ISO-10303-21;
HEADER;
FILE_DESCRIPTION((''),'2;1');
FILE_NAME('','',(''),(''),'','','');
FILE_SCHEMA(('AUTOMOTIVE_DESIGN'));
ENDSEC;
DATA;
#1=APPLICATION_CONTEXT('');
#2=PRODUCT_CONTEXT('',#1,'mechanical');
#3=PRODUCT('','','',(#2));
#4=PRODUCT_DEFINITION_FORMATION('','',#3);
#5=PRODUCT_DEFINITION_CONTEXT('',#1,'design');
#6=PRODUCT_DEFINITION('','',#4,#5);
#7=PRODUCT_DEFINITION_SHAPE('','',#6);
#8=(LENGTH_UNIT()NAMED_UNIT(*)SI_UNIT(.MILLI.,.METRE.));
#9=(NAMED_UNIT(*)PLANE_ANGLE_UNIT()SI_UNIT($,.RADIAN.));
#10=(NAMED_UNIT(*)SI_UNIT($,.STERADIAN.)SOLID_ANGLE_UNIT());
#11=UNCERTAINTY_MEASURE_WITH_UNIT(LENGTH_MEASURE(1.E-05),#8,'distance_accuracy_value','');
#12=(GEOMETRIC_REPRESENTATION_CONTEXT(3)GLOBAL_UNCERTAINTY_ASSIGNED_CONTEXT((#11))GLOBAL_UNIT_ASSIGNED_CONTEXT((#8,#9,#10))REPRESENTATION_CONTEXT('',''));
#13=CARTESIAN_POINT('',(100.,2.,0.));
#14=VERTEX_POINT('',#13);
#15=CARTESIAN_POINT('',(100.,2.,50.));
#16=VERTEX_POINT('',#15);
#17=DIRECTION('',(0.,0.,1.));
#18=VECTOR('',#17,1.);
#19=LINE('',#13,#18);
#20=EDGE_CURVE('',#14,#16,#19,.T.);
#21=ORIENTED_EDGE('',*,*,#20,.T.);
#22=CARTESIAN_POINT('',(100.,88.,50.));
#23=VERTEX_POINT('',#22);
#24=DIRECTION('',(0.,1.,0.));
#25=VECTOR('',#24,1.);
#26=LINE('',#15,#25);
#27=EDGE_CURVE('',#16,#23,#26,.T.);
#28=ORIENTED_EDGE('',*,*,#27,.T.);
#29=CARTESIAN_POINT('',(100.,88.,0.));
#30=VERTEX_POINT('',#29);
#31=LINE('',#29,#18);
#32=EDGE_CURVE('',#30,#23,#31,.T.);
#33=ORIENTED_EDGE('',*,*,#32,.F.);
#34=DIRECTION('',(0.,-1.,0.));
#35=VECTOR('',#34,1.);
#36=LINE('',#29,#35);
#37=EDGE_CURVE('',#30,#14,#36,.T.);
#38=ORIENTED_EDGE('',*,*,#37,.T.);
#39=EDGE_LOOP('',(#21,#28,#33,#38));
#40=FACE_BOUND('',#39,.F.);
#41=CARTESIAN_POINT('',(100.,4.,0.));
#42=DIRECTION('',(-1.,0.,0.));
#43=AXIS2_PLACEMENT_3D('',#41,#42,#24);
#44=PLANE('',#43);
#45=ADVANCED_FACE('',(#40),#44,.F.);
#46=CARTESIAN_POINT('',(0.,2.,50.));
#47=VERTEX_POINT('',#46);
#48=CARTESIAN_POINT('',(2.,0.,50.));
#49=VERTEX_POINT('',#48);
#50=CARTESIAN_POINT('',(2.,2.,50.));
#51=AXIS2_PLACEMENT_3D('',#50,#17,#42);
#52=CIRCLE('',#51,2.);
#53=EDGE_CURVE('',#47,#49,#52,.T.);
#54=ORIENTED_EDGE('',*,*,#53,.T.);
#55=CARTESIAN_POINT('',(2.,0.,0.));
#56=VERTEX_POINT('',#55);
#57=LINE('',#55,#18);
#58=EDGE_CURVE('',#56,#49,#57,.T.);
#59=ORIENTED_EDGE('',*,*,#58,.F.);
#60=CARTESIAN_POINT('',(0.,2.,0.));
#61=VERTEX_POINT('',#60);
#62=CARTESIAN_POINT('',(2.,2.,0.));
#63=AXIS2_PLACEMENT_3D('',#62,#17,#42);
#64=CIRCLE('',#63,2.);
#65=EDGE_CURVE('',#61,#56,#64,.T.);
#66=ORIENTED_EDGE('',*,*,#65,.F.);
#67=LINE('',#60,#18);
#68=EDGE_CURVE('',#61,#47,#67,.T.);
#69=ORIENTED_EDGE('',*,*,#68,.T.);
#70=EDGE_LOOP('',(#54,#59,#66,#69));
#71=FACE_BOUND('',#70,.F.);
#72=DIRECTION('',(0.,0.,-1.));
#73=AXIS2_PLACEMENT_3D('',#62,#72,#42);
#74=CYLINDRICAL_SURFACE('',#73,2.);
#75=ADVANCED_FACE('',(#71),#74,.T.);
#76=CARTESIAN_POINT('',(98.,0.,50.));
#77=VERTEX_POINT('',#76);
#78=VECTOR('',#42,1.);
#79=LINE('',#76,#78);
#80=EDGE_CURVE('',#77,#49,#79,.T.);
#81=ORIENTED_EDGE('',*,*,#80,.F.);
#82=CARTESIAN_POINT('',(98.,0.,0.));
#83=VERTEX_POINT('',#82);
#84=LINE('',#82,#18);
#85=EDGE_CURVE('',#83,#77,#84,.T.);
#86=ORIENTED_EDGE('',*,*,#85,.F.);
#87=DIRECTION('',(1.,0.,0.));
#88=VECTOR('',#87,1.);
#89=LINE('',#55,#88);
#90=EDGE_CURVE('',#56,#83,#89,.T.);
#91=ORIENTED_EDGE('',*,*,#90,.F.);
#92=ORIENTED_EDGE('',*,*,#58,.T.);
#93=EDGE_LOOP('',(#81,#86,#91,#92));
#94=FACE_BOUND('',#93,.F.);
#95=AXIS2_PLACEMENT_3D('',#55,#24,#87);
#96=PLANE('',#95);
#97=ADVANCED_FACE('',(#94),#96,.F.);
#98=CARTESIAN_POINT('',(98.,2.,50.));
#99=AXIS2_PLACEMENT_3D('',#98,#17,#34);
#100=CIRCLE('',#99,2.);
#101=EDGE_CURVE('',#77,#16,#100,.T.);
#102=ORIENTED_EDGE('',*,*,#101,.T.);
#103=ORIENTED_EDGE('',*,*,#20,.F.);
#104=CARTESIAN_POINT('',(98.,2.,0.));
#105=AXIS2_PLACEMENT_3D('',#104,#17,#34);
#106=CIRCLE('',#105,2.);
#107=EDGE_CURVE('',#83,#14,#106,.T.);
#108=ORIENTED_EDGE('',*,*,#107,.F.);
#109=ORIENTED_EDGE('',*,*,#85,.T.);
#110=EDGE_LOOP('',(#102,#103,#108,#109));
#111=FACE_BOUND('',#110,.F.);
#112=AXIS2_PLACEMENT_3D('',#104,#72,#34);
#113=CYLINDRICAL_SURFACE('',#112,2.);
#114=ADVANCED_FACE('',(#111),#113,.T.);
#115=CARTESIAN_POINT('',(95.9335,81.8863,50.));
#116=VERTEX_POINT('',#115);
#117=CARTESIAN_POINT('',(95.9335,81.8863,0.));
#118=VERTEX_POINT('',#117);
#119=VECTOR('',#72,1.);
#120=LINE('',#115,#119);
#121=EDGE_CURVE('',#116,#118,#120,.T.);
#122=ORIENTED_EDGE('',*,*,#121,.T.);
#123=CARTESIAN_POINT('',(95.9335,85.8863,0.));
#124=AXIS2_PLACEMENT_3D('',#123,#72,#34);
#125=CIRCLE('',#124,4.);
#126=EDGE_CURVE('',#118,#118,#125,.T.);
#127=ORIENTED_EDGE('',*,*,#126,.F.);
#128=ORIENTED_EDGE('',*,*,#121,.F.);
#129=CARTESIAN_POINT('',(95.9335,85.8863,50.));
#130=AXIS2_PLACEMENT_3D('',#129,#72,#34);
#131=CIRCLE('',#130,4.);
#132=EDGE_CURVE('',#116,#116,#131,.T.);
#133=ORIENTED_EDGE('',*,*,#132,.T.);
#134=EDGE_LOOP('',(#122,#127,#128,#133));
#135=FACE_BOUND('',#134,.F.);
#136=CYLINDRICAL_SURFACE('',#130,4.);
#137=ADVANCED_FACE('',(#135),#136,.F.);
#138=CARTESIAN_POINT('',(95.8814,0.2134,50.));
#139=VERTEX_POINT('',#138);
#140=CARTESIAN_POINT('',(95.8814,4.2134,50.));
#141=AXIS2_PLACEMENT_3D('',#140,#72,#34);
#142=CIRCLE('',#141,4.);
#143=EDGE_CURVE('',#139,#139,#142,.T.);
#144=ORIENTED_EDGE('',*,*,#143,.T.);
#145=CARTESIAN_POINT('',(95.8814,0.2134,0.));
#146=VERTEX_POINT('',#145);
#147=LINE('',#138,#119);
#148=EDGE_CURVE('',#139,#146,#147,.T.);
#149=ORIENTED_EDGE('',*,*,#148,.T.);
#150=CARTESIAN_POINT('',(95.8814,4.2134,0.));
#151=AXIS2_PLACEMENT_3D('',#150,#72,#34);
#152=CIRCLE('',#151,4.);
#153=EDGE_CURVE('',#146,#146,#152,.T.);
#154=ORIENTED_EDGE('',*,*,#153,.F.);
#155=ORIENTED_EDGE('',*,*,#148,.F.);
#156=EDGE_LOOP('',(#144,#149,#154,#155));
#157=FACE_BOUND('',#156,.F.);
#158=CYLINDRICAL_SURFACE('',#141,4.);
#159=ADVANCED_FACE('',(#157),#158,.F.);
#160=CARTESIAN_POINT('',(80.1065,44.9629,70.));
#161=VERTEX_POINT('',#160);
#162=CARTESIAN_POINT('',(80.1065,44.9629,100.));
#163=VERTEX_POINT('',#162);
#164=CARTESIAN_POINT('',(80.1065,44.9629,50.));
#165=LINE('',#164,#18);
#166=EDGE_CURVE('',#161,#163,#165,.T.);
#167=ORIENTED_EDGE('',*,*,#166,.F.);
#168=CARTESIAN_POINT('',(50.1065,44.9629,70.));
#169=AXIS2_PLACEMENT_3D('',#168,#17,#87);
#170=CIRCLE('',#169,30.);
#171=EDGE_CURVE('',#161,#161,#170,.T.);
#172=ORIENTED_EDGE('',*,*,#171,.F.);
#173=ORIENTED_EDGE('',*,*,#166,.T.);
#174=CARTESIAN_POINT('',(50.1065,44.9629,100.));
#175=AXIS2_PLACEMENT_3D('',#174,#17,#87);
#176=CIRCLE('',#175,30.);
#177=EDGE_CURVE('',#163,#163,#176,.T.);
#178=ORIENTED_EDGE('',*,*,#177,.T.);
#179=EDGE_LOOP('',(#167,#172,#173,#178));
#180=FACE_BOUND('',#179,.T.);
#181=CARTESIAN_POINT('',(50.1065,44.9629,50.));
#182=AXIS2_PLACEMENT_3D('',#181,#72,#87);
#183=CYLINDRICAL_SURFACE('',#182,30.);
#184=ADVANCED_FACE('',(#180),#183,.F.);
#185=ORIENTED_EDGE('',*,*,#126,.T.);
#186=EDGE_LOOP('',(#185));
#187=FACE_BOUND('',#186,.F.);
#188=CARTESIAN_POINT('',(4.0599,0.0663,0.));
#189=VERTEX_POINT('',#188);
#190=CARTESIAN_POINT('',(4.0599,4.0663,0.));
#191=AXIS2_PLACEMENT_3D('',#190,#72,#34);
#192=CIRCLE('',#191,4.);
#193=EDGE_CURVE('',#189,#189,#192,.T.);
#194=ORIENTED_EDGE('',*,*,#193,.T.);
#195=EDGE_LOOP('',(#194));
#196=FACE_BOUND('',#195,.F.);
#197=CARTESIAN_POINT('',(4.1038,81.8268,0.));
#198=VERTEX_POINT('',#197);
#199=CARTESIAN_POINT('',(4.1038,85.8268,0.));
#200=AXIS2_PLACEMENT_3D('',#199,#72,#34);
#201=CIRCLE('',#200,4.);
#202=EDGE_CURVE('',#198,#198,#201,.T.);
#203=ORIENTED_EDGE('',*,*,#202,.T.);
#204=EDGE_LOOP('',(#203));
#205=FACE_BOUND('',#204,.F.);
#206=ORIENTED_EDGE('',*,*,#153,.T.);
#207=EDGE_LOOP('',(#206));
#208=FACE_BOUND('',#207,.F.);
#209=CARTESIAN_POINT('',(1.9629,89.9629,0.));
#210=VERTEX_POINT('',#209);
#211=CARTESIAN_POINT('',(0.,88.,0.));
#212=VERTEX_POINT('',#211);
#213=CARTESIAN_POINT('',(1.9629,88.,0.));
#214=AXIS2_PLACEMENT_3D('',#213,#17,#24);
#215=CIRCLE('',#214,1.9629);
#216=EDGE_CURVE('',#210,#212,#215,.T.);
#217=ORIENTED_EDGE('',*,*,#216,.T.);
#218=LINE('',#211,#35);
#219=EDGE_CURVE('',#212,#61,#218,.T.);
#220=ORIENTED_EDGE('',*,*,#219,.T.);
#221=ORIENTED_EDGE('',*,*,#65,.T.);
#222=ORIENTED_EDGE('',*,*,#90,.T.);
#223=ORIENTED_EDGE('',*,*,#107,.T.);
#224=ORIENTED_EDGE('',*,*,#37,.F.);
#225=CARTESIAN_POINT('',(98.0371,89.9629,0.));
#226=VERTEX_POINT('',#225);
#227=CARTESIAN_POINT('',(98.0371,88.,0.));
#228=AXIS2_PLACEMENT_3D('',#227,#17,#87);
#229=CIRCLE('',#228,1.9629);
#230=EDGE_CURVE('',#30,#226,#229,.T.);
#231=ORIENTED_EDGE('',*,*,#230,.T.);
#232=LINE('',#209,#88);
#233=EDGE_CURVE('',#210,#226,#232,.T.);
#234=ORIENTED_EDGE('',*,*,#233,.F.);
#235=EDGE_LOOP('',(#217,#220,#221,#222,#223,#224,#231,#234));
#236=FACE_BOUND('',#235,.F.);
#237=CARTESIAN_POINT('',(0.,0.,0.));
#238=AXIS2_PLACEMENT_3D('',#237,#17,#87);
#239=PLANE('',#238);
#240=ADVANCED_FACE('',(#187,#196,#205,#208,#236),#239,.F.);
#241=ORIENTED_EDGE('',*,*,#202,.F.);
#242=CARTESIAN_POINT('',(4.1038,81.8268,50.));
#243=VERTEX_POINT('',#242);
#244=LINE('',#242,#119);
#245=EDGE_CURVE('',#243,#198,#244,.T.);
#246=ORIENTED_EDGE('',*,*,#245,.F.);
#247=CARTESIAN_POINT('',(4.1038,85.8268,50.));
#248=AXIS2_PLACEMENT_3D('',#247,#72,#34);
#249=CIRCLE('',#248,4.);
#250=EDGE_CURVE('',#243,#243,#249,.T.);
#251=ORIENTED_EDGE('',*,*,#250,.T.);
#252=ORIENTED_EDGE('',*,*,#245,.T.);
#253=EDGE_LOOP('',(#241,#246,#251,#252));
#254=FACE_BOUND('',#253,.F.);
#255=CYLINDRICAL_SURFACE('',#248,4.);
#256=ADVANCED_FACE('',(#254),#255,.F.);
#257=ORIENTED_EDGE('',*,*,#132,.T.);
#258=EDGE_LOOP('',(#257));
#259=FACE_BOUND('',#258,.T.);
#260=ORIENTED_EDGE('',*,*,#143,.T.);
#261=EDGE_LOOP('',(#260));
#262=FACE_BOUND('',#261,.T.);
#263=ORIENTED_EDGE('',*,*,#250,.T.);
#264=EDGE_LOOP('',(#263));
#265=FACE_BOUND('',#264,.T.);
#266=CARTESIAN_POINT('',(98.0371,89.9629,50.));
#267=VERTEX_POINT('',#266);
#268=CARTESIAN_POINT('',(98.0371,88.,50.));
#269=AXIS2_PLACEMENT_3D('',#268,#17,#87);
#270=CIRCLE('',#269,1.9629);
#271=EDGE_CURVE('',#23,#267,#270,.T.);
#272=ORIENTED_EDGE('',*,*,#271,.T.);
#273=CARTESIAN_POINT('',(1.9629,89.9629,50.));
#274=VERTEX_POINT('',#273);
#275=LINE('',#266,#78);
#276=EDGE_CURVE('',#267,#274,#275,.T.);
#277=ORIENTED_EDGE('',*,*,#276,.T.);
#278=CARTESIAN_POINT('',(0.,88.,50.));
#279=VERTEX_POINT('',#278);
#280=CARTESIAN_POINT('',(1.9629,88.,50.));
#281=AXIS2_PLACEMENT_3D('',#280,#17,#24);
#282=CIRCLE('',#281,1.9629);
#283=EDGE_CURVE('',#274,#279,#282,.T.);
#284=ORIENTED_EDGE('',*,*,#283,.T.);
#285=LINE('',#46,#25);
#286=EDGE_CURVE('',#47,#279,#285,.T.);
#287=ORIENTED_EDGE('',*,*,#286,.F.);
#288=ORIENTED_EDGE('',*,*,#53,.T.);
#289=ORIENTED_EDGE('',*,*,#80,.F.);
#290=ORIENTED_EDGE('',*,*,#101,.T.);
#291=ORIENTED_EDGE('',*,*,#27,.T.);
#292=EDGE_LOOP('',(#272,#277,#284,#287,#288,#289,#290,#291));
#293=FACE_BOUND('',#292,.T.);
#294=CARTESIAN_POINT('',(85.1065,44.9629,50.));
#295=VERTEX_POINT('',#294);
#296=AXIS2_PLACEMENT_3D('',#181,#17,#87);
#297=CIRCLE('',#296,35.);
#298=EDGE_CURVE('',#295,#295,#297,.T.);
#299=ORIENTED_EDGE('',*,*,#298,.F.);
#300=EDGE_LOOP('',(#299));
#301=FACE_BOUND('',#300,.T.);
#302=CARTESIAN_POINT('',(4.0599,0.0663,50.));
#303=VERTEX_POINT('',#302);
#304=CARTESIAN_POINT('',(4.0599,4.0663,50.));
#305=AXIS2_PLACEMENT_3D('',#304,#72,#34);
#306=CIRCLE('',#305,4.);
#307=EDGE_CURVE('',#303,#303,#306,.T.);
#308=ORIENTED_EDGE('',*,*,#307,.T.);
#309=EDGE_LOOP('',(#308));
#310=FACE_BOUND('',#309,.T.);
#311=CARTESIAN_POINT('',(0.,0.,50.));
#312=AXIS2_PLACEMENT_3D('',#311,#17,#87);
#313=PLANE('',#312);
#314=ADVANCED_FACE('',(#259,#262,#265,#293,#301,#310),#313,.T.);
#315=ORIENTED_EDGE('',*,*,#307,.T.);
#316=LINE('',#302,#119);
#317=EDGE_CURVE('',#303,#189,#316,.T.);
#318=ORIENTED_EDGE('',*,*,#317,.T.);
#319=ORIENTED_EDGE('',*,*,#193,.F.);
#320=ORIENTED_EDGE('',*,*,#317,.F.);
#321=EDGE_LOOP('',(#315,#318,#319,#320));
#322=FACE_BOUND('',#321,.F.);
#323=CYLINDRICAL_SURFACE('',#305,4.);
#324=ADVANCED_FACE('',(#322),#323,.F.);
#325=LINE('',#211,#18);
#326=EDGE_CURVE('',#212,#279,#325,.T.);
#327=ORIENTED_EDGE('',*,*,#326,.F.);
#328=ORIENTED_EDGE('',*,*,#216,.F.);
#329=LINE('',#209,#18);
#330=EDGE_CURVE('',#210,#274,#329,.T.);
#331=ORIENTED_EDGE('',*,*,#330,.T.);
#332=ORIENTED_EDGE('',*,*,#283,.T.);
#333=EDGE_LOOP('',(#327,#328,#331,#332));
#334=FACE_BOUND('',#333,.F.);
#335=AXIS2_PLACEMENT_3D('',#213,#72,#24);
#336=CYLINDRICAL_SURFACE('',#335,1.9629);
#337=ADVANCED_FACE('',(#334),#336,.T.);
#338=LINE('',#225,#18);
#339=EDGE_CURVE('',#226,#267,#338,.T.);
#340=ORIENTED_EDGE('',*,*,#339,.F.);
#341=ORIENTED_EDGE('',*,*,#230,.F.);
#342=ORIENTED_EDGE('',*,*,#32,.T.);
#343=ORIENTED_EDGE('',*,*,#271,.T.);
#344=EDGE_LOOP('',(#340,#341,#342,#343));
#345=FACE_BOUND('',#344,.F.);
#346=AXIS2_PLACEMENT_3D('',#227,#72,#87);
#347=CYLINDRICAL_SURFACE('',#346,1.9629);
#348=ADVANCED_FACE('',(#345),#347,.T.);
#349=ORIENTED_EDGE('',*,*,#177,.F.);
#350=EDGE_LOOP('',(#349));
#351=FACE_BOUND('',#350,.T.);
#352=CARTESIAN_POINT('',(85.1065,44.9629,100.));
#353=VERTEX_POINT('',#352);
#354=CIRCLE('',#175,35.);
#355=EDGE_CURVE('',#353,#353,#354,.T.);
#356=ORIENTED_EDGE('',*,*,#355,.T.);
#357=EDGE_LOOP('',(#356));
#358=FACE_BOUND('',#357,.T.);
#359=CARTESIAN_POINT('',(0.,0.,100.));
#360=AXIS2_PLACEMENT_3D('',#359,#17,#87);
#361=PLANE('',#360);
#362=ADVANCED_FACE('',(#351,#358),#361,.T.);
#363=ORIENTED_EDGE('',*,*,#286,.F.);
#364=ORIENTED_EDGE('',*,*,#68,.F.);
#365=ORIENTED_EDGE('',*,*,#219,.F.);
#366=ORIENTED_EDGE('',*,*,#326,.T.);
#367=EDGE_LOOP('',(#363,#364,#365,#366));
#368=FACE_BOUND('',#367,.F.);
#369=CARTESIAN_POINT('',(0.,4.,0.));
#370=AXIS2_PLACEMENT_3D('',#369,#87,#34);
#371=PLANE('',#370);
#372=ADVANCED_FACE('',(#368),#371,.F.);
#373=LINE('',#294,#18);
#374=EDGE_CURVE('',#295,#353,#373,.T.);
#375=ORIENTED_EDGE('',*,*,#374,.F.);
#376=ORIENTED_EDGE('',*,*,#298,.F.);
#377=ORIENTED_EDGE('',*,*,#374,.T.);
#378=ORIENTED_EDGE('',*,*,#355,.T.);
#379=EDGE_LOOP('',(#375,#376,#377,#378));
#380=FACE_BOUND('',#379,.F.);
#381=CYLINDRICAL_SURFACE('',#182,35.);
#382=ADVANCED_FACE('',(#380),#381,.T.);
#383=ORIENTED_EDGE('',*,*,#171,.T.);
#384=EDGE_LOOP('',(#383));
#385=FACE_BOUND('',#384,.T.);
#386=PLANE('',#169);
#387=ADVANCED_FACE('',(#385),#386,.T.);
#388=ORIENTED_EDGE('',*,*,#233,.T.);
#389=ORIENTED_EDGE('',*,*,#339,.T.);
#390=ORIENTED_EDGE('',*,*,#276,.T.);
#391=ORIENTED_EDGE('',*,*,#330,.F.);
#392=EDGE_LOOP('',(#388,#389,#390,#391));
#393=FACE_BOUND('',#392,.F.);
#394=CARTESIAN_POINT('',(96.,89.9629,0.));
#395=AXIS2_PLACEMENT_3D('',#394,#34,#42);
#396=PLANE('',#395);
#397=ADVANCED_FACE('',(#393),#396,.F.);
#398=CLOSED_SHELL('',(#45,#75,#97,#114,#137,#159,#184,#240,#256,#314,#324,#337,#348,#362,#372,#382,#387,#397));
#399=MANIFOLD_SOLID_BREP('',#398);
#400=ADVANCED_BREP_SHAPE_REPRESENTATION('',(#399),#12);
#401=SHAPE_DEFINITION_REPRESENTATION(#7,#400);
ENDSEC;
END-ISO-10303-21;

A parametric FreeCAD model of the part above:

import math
import FreeCAD as App
import Part
import Sketcher

V = App.Vector
Q = App.Units.Quantity

doc = App.newDocument("Part")
params = doc.addObject("Spreadsheet::Sheet", "Params")
for row, (alias, value) in enumerate([
    ("sketch1_radius", "2 mm"),
    ("sketch1_height", "86 mm"),
    ("pad1_length", "50 mm"),
    ("sketch2_diameter", "8 mm"),
    ("hole_diameter", "8 mm"),
    ("sketch3_diameter", "8 mm"),
    ("hole2_diameter", "8 mm"),
    ("sketch4_diameter", "8 mm"),
    ("hole3_diameter", "8 mm"),
    ("sketch5_diameter", "8 mm"),
    ("hole4_diameter", "8 mm"),
    ("sketch6_diameter", "70 mm"),
    ("sketch6_diameter2", "60 mm"),
    ("pad2_length", "50 mm"),
    ("sketch7_diameter", "60 mm"),
    ("pad3_length", "20 mm"),
], start=1):
    params.set(f"A{row}", alias)
    params.set(f"B{row}", "=" + value)
    params.setAlias(f"B{row}", alias)

body = doc.addObject("PartDesign::Body", "Body")

# Sketch on XY plane
sketch1 = doc.addObject("Sketcher::SketchObject", "Sketch")
body.addObject(sketch1)
sketch1.AttachmentSupport = (doc.XY_Plane, [""])
sketch1.MapMode = "FlatFace"
sketch1.addGeometry([
    Part.ArcOfCircle(Part.Circle(V(2, 2, 0), V(0, 0, 1), 2), math.radians(180), math.radians(270)),  # 0
    Part.LineSegment(V(2, 0, 0), V(98, 0, 0)),  # 1
    Part.ArcOfCircle(Part.Circle(V(98, 2, 0), V(0, 0, 1), 2), math.radians(-90), math.radians(0)),  # 2
    Part.LineSegment(V(100, 2, 0), V(100, 88, 0)),  # 3
    Part.ArcOfCircle(Part.Circle(V(98, 88, 0), V(0, 0, 1), 2), math.radians(0), math.radians(90)),  # 4
    Part.LineSegment(V(98, 90, 0), V(2, 90, 0)),  # 5
    Part.ArcOfCircle(Part.Circle(V(2, 88, 0), V(0, 0, 1), 2), math.radians(90), math.radians(180)),  # 6
    Part.LineSegment(V(0, 88, 0), V(0, 2, 0)),  # 7
], False)
sketch1.addConstraint([
    Sketcher.Constraint("Tangent", 0, 2, 1, 1),
    Sketcher.Constraint("Tangent", 1, 2, 2, 1),
    Sketcher.Constraint("Tangent", 2, 2, 3, 1),
    Sketcher.Constraint("Tangent", 3, 2, 4, 1),
    Sketcher.Constraint("Tangent", 4, 2, 5, 1),
    Sketcher.Constraint("Tangent", 5, 2, 6, 1),
    Sketcher.Constraint("Tangent", 6, 2, 7, 1),
    Sketcher.Constraint("Tangent", 7, 2, 0, 1),
    Sketcher.Constraint("Horizontal", 1),
    Sketcher.Constraint("Vertical", 3),
    Sketcher.Constraint("Horizontal", 5),
    Sketcher.Constraint("Vertical", 7),
    Sketcher.Constraint("Equal", 0, 2),
    Sketcher.Constraint("Equal", 4, 6),
    Sketcher.Constraint("PointOnObject", 0, 2, -1),
    Sketcher.Constraint("PointOnObject", 6, 2, -2),
    Sketcher.Constraint("DistanceX", -1, 1, 2, 2, Q("100 mm")),
    Sketcher.Constraint("Radius", 0, Q("2 mm")),
    Sketcher.Constraint("DistanceY", 3, 1, 3, 2, Q("86 mm")),
    Sketcher.Constraint("Radius", 4, Q("1.963 mm")),
])
sketch1.setExpression("Constraints[17]", "Params.sketch1_radius")
sketch1.setExpression("Constraints[18]", "Params.sketch1_height")
pad1 = doc.addObject("PartDesign::Pad", "Pad")
body.addObject(pad1)
pad1.Profile = sketch1
pad1.setExpression("Length", "Params.pad1_length")

# Sketch on XY plane
sketch2 = doc.addObject("Sketcher::SketchObject", "Sketch001")
body.addObject(sketch2)
sketch2.AttachmentSupport = (doc.XY_Plane, [""])
sketch2.MapMode = "FlatFace"
sketch2.AttachmentOffset = App.Placement(V(0, 0, 50), App.Rotation())
sketch2.addGeometry(Part.Circle(V(4.1, 85.8, 0), V(0, 0, 1), 4), False)
sketch2.addConstraint([
    Sketcher.Constraint("Diameter", 0, Q("8 mm")),
    Sketcher.Constraint("DistanceX", -1, 1, 0, 3, Q("4.1038 mm")),
    Sketcher.Constraint("DistanceY", -1, 1, 0, 3, Q("85.8268 mm")),
])
sketch2.setExpression("Constraints[0]", "Params.sketch2_diameter")
doc.recompute()
hole = doc.addObject("PartDesign::Hole", "Hole")
body.addObject(hole)
hole.Profile = sketch2
hole.ThreadType = "None"
hole.setExpression("Diameter", "Params.hole_diameter")
hole.DepthType = "ThroughAll"

# Sketch on XY plane
sketch3 = doc.addObject("Sketcher::SketchObject", "Sketch002")
body.addObject(sketch3)
sketch3.AttachmentSupport = (doc.XY_Plane, [""])
sketch3.MapMode = "FlatFace"
sketch3.AttachmentOffset = App.Placement(V(0, 0, 50), App.Rotation())
sketch3.addGeometry(Part.Circle(V(95.9, 85.9, 0), V(0, 0, 1), 4), False)
sketch3.addConstraint([
    Sketcher.Constraint("Diameter", 0, Q("8 mm")),
    Sketcher.Constraint("DistanceX", -1, 1, 0, 3, Q("95.9335 mm")),
    Sketcher.Constraint("DistanceY", -1, 1, 0, 3, Q("85.8863 mm")),
])
sketch3.setExpression("Constraints[0]", "Params.sketch3_diameter")
doc.recompute()
hole2 = doc.addObject("PartDesign::Hole", "Hole001")
body.addObject(hole2)
hole2.Profile = sketch3
hole2.ThreadType = "None"
hole2.setExpression("Diameter", "Params.hole2_diameter")
hole2.DepthType = "ThroughAll"

# Sketch on XY plane
sketch4 = doc.addObject("Sketcher::SketchObject", "Sketch003")
body.addObject(sketch4)
sketch4.AttachmentSupport = (doc.XY_Plane, [""])
sketch4.MapMode = "FlatFace"
sketch4.AttachmentOffset = App.Placement(V(0, 0, 50), App.Rotation())
sketch4.addGeometry(Part.Circle(V(95.9, 4.2, 0), V(0, 0, 1), 4), False)
sketch4.addConstraint([
    Sketcher.Constraint("Diameter", 0, Q("8 mm")),
    Sketcher.Constraint("DistanceX", -1, 1, 0, 3, Q("95.8814 mm")),
    Sketcher.Constraint("DistanceY", -1, 1, 0, 3, Q("4.2134 mm")),
])
sketch4.setExpression("Constraints[0]", "Params.sketch4_diameter")
doc.recompute()
hole3 = doc.addObject("PartDesign::Hole", "Hole002")
body.addObject(hole3)
hole3.Profile = sketch4
hole3.ThreadType = "None"
hole3.setExpression("Diameter", "Params.hole3_diameter")
hole3.DepthType = "ThroughAll"

# Sketch on XY plane
sketch5 = doc.addObject("Sketcher::SketchObject", "Sketch004")
body.addObject(sketch5)
sketch5.AttachmentSupport = (doc.XY_Plane, [""])
sketch5.MapMode = "FlatFace"
sketch5.AttachmentOffset = App.Placement(V(0, 0, 50), App.Rotation())
sketch5.addGeometry(Part.Circle(V(4.1, 4.1, 0), V(0, 0, 1), 4), False)
sketch5.addConstraint([
    Sketcher.Constraint("Diameter", 0, Q("8 mm")),
    Sketcher.Constraint("DistanceX", -1, 1, 0, 3, Q("4.06 mm")),
    Sketcher.Constraint("DistanceY", -1, 1, 0, 3, Q("4.0663 mm")),
])
sketch5.setExpression("Constraints[0]", "Params.sketch5_diameter")
doc.recompute()
hole4 = doc.addObject("PartDesign::Hole", "Hole003")
body.addObject(hole4)
hole4.Profile = sketch5
hole4.ThreadType = "None"
hole4.setExpression("Diameter", "Params.hole4_diameter")
hole4.DepthType = "ThroughAll"

# Sketch on XY plane
sketch6 = doc.addObject("Sketcher::SketchObject", "Sketch005")
body.addObject(sketch6)
sketch6.AttachmentSupport = (doc.XY_Plane, [""])
sketch6.MapMode = "FlatFace"
sketch6.AttachmentOffset = App.Placement(V(0, 0, 50), App.Rotation())
sketch6.addGeometry([
    Part.Circle(V(50, 45, 0), V(0, 0, 1), 35),
    Part.Circle(V(50, 45, 0), V(0, 0, 1), 30),
], False)
sketch6.addConstraint([
    Sketcher.Constraint("Coincident", 1, 3, 0, 3),
    Sketcher.Constraint("Diameter", 0, Q("70 mm")),
    Sketcher.Constraint("Diameter", 1, Q("60 mm")),
    Sketcher.Constraint("DistanceY", -1, 1, 0, 3, Q("44.963 mm")),
    Sketcher.Constraint("DistanceX", -1, 1, 0, 3, Q("50.1065 mm")),
])
sketch6.setExpression("Constraints[1]", "Params.sketch6_diameter")
sketch6.setExpression("Constraints[2]", "Params.sketch6_diameter2")
pad2 = doc.addObject("PartDesign::Pad", "Pad001")
body.addObject(pad2)
pad2.Profile = sketch6
pad2.setExpression("Length", "Params.pad2_length")

# Sketch on XY plane
sketch7 = doc.addObject("Sketcher::SketchObject", "Sketch006")
body.addObject(sketch7)
sketch7.AttachmentSupport = (doc.XY_Plane, [""])
sketch7.MapMode = "FlatFace"
sketch7.AttachmentOffset = App.Placement(V(0, 0, 50), App.Rotation())
sketch7.addGeometry(Part.Circle(V(50, 45, 0), V(0, 0, 1), 30), False)
sketch7.addConstraint([
    Sketcher.Constraint("Diameter", 0, Q("60 mm")),
    Sketcher.Constraint("DistanceY", -1, 1, 0, 3, Q("44.963 mm")),
    Sketcher.Constraint("DistanceX", -1, 1, 0, 3, Q("50.1065 mm")),
])
sketch7.setExpression("Constraints[0]", "Params.sketch7_diameter")
pad3 = doc.addObject("PartDesign::Pad", "Pad002")
body.addObject(pad3)
pad3.Profile = sketch7
pad3.setExpression("Length", "Params.pad3_length")

doc.recompute()
